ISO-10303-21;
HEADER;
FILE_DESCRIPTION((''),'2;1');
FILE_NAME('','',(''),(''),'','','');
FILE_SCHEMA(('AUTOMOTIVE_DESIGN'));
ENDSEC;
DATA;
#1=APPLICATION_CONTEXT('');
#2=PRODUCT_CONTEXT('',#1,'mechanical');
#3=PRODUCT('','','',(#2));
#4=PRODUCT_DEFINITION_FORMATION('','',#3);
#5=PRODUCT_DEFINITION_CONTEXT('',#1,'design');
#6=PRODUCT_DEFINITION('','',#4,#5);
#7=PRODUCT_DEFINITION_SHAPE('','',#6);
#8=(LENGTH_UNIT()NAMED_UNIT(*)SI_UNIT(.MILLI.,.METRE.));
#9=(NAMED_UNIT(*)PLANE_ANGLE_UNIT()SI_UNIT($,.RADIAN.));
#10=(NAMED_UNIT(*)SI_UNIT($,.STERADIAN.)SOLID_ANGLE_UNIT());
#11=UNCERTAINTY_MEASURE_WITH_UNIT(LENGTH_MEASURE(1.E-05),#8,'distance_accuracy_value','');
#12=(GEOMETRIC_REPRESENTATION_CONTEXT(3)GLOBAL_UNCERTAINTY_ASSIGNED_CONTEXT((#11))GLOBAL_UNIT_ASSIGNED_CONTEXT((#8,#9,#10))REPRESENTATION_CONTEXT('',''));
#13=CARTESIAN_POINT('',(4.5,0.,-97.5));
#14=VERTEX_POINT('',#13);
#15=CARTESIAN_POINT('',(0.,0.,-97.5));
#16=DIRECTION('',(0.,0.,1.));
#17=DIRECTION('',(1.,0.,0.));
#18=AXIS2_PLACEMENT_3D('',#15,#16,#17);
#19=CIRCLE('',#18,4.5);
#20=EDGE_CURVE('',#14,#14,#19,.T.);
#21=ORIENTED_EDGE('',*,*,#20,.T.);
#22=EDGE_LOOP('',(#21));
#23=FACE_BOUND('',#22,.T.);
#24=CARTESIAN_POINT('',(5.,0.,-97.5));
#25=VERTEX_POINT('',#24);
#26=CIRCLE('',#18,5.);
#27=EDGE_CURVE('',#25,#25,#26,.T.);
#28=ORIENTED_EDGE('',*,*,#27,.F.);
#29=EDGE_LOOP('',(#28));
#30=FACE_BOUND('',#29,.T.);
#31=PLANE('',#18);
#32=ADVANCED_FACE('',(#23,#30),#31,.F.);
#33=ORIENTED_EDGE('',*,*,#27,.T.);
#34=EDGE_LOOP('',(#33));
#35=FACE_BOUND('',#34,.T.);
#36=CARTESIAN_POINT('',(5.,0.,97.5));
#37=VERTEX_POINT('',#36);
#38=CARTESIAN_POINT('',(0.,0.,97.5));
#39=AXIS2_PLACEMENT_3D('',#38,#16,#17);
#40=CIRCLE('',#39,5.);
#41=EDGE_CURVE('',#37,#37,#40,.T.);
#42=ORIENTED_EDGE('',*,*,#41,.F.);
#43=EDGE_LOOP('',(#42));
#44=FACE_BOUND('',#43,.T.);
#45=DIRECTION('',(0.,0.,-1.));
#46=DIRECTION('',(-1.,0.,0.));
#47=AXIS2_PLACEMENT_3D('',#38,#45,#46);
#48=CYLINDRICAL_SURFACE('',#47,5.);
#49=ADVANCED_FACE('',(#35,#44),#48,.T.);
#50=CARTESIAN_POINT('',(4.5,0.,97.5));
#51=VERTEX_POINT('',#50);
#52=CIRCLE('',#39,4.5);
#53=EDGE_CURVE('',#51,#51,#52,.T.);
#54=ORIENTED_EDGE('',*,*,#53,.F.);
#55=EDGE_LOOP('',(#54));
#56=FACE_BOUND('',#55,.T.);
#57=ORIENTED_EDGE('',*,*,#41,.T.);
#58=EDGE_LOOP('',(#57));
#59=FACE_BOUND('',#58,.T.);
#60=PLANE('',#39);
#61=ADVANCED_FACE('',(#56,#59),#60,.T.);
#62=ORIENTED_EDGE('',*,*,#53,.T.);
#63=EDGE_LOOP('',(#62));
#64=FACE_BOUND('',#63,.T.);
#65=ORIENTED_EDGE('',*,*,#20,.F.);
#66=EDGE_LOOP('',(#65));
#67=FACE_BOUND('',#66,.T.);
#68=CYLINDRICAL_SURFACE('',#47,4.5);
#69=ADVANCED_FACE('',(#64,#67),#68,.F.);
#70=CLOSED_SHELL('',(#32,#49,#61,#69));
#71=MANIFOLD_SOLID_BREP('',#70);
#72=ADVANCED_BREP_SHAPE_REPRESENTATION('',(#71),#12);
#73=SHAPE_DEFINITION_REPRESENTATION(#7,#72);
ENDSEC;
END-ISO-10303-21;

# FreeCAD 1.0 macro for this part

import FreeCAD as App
import Part
import Sketcher
Q = App.Units.Quantity

doc = App.newDocument("Part")
body = doc.addObject("PartDesign::Body", "Body")

# Sketch on XY plane
sketch1 = body.newObject("Sketcher::SketchObject", "Sketch")
sketch1.AttachmentSupport = (doc.getObject("XY_Plane"), [""])
sketch1.MapMode = "FlatFace"
sketch1.addGeometry([
    Part.Circle(App.Vector(0, 0, 0), App.Vector(0, 0, 1), 5),
    Part.Circle(App.Vector(0, 0, 0), App.Vector(0, 0, 1), 4.5),
], False)
sketch1.addConstraint([
    Sketcher.Constraint("Coincident", 0, 3, -1, 1),
    Sketcher.Constraint("Coincident", 1, 3, -1, 1),
    Sketcher.Constraint("Diameter", 0, Q("10 mm")),
    Sketcher.Constraint("Diameter", 1, Q("9 mm")),
])
pad1 = body.newObject("PartDesign::Pad", "Pad")
pad1.Profile = sketch1
pad1.Length = 195
pad1.Midplane = True

doc.recompute()
